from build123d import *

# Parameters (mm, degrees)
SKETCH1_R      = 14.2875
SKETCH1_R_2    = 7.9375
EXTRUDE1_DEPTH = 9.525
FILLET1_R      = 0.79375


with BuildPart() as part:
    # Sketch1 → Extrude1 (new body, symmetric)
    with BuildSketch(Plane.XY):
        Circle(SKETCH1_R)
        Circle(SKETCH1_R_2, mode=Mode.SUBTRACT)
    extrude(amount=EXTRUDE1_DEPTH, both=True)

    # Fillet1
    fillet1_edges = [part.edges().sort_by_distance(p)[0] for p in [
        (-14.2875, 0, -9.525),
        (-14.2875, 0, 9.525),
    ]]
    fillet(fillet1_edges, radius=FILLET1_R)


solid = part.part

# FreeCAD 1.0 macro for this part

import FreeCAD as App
import Part
import Sketcher
from FreeCAD import Vector
Q = App.Units.Quantity


def edges_at(feature, points):
    """Names of the edges that pass closest to the given points."""
    edges = feature.Shape.Edges
    near = lambda p: min(range(len(edges)), key=lambda i: edges[i].distToShape(Part.Vertex(*p))[0])
    return sorted({f"Edge{near(p) + 1}" for p in points})

doc = App.newDocument("Part")
body = doc.addObject("PartDesign::Body", "Body")

# Sketch on XY plane
sketch1 = body.newObject("Sketcher::SketchObject", "Sketch")
sketch1.AttachmentSupport = (doc.getObject("XY_Plane"), [""])
sketch1.MapMode = "FlatFace"
sketch1.addGeometry(Part.Circle(Vector(0, 0, 0), Vector(0, 0, 1), 14), False)
sketch1.addGeometry(Part.Circle(Vector(0, 0, 0), Vector(0, 0, 1), 8), False)
sketch1.addConstraint(Sketcher.Constraint("Coincident", 0, 3, -1, 1))
sketch1.addConstraint(Sketcher.Constraint("Coincident", 1, 3, -1, 1))
sketch1.addConstraint(Sketcher.Constraint("Diameter", 0, Q("1.125 in")))
sketch1.addConstraint(Sketcher.Constraint("Diameter", 1, Q("0.625 in")))
pad1 = body.newObject("PartDesign::Pad", "Pad")
pad1.Profile = sketch1
pad1.Length = Q("0.75 in")
pad1.Midplane = True
doc.recompute()

fillet = body.newObject("PartDesign::Fillet", "Fillet")
fillet.Base = (pad1, edges_at(pad1, [(-14.287, 0, -9.525), (-14.287, 0, 9.525)]))
fillet.Radius = Q("0.03125 in")

doc.recompute()
